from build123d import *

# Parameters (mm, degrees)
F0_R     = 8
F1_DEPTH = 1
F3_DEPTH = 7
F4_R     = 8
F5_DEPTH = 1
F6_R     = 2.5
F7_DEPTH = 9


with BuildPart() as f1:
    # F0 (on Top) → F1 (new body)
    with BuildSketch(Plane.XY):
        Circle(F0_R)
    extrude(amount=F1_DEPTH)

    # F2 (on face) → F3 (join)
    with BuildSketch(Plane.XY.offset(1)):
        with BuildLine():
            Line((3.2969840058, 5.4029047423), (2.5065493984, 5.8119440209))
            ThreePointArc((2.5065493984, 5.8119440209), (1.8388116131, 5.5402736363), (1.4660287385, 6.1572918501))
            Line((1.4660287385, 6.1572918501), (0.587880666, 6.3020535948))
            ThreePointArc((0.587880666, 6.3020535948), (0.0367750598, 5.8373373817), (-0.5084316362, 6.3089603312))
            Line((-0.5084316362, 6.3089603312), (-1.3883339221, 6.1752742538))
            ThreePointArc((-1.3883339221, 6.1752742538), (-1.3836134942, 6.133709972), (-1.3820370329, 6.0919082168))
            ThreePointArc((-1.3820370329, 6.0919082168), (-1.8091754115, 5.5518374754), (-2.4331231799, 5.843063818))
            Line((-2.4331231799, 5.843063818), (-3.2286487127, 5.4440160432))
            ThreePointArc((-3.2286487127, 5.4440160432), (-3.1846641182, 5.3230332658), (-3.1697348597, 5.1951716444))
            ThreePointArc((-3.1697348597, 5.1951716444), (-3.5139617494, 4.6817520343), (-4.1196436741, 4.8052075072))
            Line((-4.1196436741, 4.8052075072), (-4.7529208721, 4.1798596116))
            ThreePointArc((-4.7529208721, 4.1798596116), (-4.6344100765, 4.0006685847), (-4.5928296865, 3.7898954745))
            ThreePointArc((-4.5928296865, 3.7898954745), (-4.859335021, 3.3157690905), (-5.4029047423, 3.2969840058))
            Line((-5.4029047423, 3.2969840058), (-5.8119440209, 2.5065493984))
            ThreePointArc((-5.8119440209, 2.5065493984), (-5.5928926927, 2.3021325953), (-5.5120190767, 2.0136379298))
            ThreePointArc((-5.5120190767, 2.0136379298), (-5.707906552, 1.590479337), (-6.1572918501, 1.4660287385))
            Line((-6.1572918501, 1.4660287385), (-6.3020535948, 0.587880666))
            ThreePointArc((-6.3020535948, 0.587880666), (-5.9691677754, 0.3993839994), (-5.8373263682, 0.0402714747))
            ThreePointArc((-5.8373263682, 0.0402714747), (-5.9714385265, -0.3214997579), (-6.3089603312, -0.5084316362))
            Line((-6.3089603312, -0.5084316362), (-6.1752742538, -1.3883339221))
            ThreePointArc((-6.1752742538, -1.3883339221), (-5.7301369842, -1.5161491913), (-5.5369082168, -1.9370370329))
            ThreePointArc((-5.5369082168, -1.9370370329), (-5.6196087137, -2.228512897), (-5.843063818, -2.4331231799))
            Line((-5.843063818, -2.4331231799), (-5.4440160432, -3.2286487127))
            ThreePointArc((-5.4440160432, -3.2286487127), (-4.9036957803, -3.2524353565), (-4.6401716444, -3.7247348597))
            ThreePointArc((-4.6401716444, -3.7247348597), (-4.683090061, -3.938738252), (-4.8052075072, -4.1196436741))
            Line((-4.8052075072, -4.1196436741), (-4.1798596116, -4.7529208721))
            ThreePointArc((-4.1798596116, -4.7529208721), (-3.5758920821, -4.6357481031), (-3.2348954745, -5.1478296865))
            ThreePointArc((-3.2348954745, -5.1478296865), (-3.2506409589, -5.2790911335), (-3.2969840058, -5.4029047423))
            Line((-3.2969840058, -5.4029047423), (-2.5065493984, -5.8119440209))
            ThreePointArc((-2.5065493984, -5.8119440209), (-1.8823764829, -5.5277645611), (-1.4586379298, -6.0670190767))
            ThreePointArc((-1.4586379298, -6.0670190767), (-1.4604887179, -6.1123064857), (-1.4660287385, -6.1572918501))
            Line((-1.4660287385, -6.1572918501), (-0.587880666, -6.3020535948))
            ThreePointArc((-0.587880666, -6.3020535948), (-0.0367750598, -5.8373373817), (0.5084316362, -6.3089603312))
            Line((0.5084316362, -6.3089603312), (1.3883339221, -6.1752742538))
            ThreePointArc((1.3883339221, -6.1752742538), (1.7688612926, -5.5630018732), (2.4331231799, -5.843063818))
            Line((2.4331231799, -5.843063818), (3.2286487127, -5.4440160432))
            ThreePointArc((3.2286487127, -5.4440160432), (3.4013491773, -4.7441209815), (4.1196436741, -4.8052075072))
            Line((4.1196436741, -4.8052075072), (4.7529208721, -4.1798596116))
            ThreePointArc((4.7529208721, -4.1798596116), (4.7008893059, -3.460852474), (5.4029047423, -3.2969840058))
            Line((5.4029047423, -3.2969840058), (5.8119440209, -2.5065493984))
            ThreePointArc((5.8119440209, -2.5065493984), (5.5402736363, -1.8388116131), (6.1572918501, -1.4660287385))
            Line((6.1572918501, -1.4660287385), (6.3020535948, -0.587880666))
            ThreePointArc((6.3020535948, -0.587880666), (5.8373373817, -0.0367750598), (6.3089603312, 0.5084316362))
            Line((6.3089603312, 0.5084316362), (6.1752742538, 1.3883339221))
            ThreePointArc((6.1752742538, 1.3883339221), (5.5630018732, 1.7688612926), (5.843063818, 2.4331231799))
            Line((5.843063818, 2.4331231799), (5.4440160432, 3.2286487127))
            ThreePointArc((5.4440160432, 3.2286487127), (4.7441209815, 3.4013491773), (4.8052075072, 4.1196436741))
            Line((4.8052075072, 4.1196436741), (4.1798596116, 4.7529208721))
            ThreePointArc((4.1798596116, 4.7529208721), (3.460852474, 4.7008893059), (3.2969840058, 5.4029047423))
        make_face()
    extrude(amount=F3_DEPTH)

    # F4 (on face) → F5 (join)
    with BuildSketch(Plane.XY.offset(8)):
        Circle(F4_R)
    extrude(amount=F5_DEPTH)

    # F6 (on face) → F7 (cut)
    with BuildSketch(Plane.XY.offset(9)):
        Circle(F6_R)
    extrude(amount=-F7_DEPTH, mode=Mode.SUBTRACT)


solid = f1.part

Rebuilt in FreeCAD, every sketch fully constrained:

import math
import FreeCAD as App
import Part
import Sketcher
Q = App.Units.Quantity

doc = App.newDocument("Part")
body = doc.addObject("PartDesign::Body", "Body")

# Sketch on XY plane
sketch1 = doc.addObject("Sketcher::SketchObject", "Sketch")
body.addObject(sketch1)
sketch1.AttachmentSupport = (doc.XY_Plane, [""])
sketch1.MapMode = "FlatFace"
sketch1.addGeometry(Part.Circle(App.Vector(0, 0, 0), App.Vector(0, 0, 1), 8), False)
sketch1.addConstraint([
    Sketcher.Constraint("Coincident", 0, 3, -1, 1),
    Sketcher.Constraint("Diameter", 0, Q("16 mm")),
])
pad1 = doc.addObject("PartDesign::Pad", "Pad")
body.addObject(pad1)
pad1.Profile = sketch1
pad1.Length = 1

# Sketch on XY plane
sketch2 = doc.addObject("Sketcher::SketchObject", "Sketch001")
body.addObject(sketch2)
sketch2.AttachmentSupport = (doc.XY_Plane, [""])
sketch2.MapMode = "FlatFace"
sketch2.AttachmentOffset = App.Placement(App.Vector(0, 0, 1), App.Rotation())
sketch2.addGeometry([
    Part.LineSegment(App.Vector(3.296984, 5.402905, 0), App.Vector(2.506549, 5.811944, 0)),  # 0
    Part.ArcOfCircle(Part.Circle(App.Vector(2.013638, 6.067019, 0), App.Vector(0, 0, 1), 0.555), math.radians(170.639043), math.radians(332.639043)),  # 1
    Part.LineSegment(App.Vector(1.466029, 6.157292, 0), App.Vector(0.587881, 6.302054, 0)),  # 2
    Part.ArcOfCircle(Part.Circle(App.Vector(0.040271, 6.392326, 0), App.Vector(0, 0, 1), 0.555), math.radians(-171.360957), math.radians(-9.360957)),  # 3
    Part.LineSegment(App.Vector(-0.508432, 6.30896, 0), App.Vector(-1.388334, 6.175274, 0)),  # 4
    Part.ArcOfCircle(Part.Circle(App.Vector(-1.937037, 6.091908, 0), App.Vector(0, 0, 1), 0.555), math.radians(0), math.radians(8.639043)),  # 5
    Part.ArcOfCircle(Part.Circle(App.Vector(-1.937037, 6.091908, 0), App.Vector(0, 0, 1), 0.555), math.radians(-153.360957), math.radians(0)),  # 6
    Part.LineSegment(App.Vector(-2.433123, 5.843064, 0), App.Vector(-3.228649, 5.444016, 0)),  # 7
    Part.ArcOfCircle(Part.Circle(App.Vector(-3.724735, 5.195172, 0), App.Vector(0, 0, 1), 0.555), math.radians(0), math.radians(26.639043)),  # 8
    Part.ArcOfCircle(Part.Circle(App.Vector(-3.724735, 5.195172, 0), App.Vector(0, 0, 1), 0.555), math.radians(-135.360957), math.radians(0)),  # 9
    Part.LineSegment(App.Vector(-4.119644, 4.805208, 0), App.Vector(-4.752921, 4.17986, 0)),  # 10
    Part.ArcOfCircle(Part.Circle(App.Vector(-5.14783, 3.789895, 0), App.Vector(0, 0, 1), 0.555), math.radians(0), math.radians(44.639043)),  # 11
    Part.ArcOfCircle(Part.Circle(App.Vector(-5.14783, 3.789895, 0), App.Vector(0, 0, 1), 0.555), math.radians(-117.360957), math.radians(0)),  # 12
    Part.LineSegment(App.Vector(-5.402905, 3.296984, 0), App.Vector(-5.811944, 2.506549, 0)),  # 13
    Part.ArcOfCircle(Part.Circle(App.Vector(-6.067019, 2.013638, 0), App.Vector(0, 0, 1), 0.555), math.radians(0), math.radians(62.639043)),  # 14
    Part.ArcOfCircle(Part.Circle(App.Vector(-6.067019, 2.013638, 0), App.Vector(0, 0, 1), 0.555), math.radians(-99.360957), math.radians(0)),  # 15
    Part.LineSegment(App.Vector(-6.157292, 1.466029, 0), App.Vector(-6.302054, 0.587881, 0)),  # 16
    Part.ArcOfCircle(Part.Circle(App.Vector(-6.392326, 0.040271, 0), App.Vector(0, 0, 1), 0.555), math.radians(0), math.radians(80.639043)),  # 17
    Part.ArcOfCircle(Part.Circle(App.Vector(-6.392326, 0.040271, 0), App.Vector(0, 0, 1), 0.555), math.radians(-81.360957), math.radians(0)),  # 18
    Part.LineSegment(App.Vector(-6.30896, -0.508432, 0), App.Vector(-6.175274, -1.388334, 0)),  # 19
    Part.ArcOfCircle(Part.Circle(App.Vector(-6.091908, -1.937037, 0), App.Vector(0, 0, 1), 0.555), math.radians(0), math.radians(98.639043)),  # 20
    Part.ArcOfCircle(Part.Circle(App.Vector(-6.091908, -1.937037, 0), App.Vector(0, 0, 1), 0.555), math.radians(-63.360957), math.radians(0)),  # 21
    Part.LineSegment(App.Vector(-5.843064, -2.433123, 0), App.Vector(-5.444016, -3.228649, 0)),  # 22
    Part.ArcOfCircle(Part.Circle(App.Vector(-5.195172, -3.724735, 0), App.Vector(0, 0, 1), 0.555), math.radians(0), math.radians(116.639043)),  # 23
    Part.ArcOfCircle(Part.Circle(App.Vector(-5.195172, -3.724735, 0), App.Vector(0, 0, 1), 0.555), math.radians(-45.360957), math.radians(0)),  # 24
    Part.LineSegment(App.Vector(-4.805208, -4.119644, 0), App.Vector(-4.17986, -4.752921, 0)),  # 25
    Part.ArcOfCircle(Part.Circle(App.Vector(-3.789895, -5.14783, 0), App.Vector(0, 0, 1), 0.555), math.radians(0), math.radians(134.639043)),  # 26
    Part.ArcOfCircle(Part.Circle(App.Vector(-3.789895, -5.14783, 0), App.Vector(0, 0, 1), 0.555), math.radians(-27.360957), math.radians(0)),  # 27
    Part.LineSegment(App.Vector(-3.296984, -5.402905, 0), App.Vector(-2.506549, -5.811944, 0)),  # 28
    Part.ArcOfCircle(Part.Circle(App.Vector(-2.013638, -6.067019, 0), App.Vector(0, 0, 1), 0.555), math.radians(0), math.radians(152.639043)),  # 29
    Part.ArcOfCircle(Part.Circle(App.Vector(-2.013638, -6.067019, 0), App.Vector(0, 0, 1), 0.555), math.radians(-9.360957), math.radians(0)),  # 30
    Part.LineSegment(App.Vector(-1.466029, -6.157292, 0), App.Vector(-0.587881, -6.302054, 0)),  # 31
    Part.ArcOfCircle(Part.Circle(App.Vector(-0.040271, -6.392326, 0), App.Vector(0, 0, 1), 0.555), math.radians(8.639043), math.radians(170.639043)),  # 32
    Part.LineSegment(App.Vector(0.508432, -6.30896, 0), App.Vector(1.388334, -6.175274, 0)),  # 33
    Part.ArcOfCircle(Part.Circle(App.Vector(1.937037, -6.091908, 0), App.Vector(0, 0, 1), 0.555), math.radians(26.639043), math.radians(188.639043)),  # 34
    Part.LineSegment(App.Vector(2.433123, -5.843064, 0), App.Vector(3.228649, -5.444016, 0)),  # 35
    Part.ArcOfCircle(Part.Circle(App.Vector(3.724735, -5.195172, 0), App.Vector(0, 0, 1), 0.555), math.radians(44.639043), math.radians(206.639043)),  # 36
    Part.LineSegment(App.Vector(4.119644, -4.805208, 0), App.Vector(4.752921, -4.17986, 0)),  # 37
    Part.ArcOfCircle(Part.Circle(App.Vector(5.14783, -3.789895, 0), App.Vector(0, 0, 1), 0.555), math.radians(62.639043), math.radians(224.639043)),  # 38
    Part.LineSegment(App.Vector(5.402905, -3.296984, 0), App.Vector(5.811944, -2.506549, 0)),  # 39
    Part.ArcOfCircle(Part.Circle(App.Vector(6.067019, -2.013638, 0), App.Vector(0, 0, 1), 0.555), math.radians(80.639043), math.radians(242.639043)),  # 40
    Part.LineSegment(App.Vector(6.157292, -1.466029, 0), App.Vector(6.302054, -0.587881, 0)),  # 41
    Part.ArcOfCircle(Part.Circle(App.Vector(6.392326, -0.040271, 0), App.Vector(0, 0, 1), 0.555), math.radians(98.639043), math.radians(260.639043)),  # 42
    Part.LineSegment(App.Vector(6.30896, 0.508432, 0), App.Vector(6.175274, 1.388334, 0)),  # 43
    Part.ArcOfCircle(Part.Circle(App.Vector(6.091908, 1.937037, 0), App.Vector(0, 0, 1), 0.555), math.radians(116.639043), math.radians(278.639043)),  # 44
    Part.LineSegment(App.Vector(5.843064, 2.433123, 0), App.Vector(5.444016, 3.228649, 0)),  # 45
    Part.ArcOfCircle(Part.Circle(App.Vector(5.195172, 3.724735, 0), App.Vector(0, 0, 1), 0.555), math.radians(134.639043), math.radians(296.639043)),  # 46
    Part.LineSegment(App.Vector(4.805208, 4.119644, 0), App.Vector(4.17986, 4.752921, 0)),  # 47
    Part.ArcOfCircle(Part.Circle(App.Vector(3.789895, 5.14783, 0), App.Vector(0, 0, 1), 0.555), math.radians(152.639043), math.radians(314.639043)),  # 48
], False)
sketch2.addConstraint([
    Sketcher.Constraint("Coincident", 0, 2, 1, 2),
    Sketcher.Constraint("Coincident", 1, 1, 2, 1),
    Sketcher.Constraint("Coincident", 2, 2, 3, 2),
    Sketcher.Constraint("Coincident", 3, 1, 4, 1),
    Sketcher.Constraint("Coincident", 4, 2, 5, 2),
    Sketcher.Constraint("Tangent", 5, 1, 6, 2),
    Sketcher.Constraint("Coincident", 6, 1, 7, 1),
    Sketcher.Constraint("Coincident", 7, 2, 8, 2),
    Sketcher.Constraint("Tangent", 8, 1, 9, 2),
    Sketcher.Constraint("Coincident", 9, 1, 10, 1),
    Sketcher.Constraint("Coincident", 10, 2, 11, 2),
    Sketcher.Constraint("Tangent", 11, 1, 12, 2),
    Sketcher.Constraint("Coincident", 12, 1, 13, 1),
    Sketcher.Constraint("Coincident", 13, 2, 14, 2),
    Sketcher.Constraint("Tangent", 14, 1, 15, 2),
    Sketcher.Constraint("Coincident", 15, 1, 16, 1),
    Sketcher.Constraint("Coincident", 16, 2, 17, 2),
    Sketcher.Constraint("Tangent", 17, 1, 18, 2),
    Sketcher.Constraint("Coincident", 18, 1, 19, 1),
    Sketcher.Constraint("Coincident", 19, 2, 20, 2),
    Sketcher.Constraint("Tangent", 20, 1, 21, 2),
    Sketcher.Constraint("Coincident", 21, 1, 22, 1),
    Sketcher.Constraint("Coincident", 22, 2, 23, 2),
    Sketcher.Constraint("Tangent", 23, 1, 24, 2),
    Sketcher.Constraint("Coincident", 24, 1, 25, 1),
    Sketcher.Constraint("Coincident", 25, 2, 26, 2),
    Sketcher.Constraint("Tangent", 26, 1, 27, 2),
    Sketcher.Constraint("Coincident", 27, 1, 28, 1),
    Sketcher.Constraint("Coincident", 28, 2, 29, 2),
    Sketcher.Constraint("Tangent", 29, 1, 30, 2),
    Sketcher.Constraint("Coincident", 30, 1, 31, 1),
    Sketcher.Constraint("Coincident", 31, 2, 32, 2),
    Sketcher.Constraint("Coincident", 32, 1, 33, 1),
    Sketcher.Constraint("Coincident", 33, 2, 34, 2),
    Sketcher.Constraint("Coincident", 34, 1, 35, 1),
    Sketcher.Constraint("Coincident", 35, 2, 36, 2),
    Sketcher.Constraint("Coincident", 36, 1, 37, 1),
    Sketcher.Constraint("Coincident", 37, 2, 38, 2),
    Sketcher.Constraint("Coincident", 38, 1, 39, 1),
    Sketcher.Constraint("Coincident", 39, 2, 40, 2),
    Sketcher.Constraint("Coincident", 40, 1, 41, 1),
    Sketcher.Constraint("Coincident", 41, 2, 42, 2),
    Sketcher.Constraint("Coincident", 42, 1, 43, 1),
    Sketcher.Constraint("Coincident", 43, 2, 44, 2),
    Sketcher.Constraint("Coincident", 44, 1, 45, 1),
    Sketcher.Constraint("Coincident", 45, 2, 46, 2),
    Sketcher.Constraint("Coincident", 46, 1, 47, 1),
    Sketcher.Constraint("Coincident", 47, 2, 48, 2),
    Sketcher.Constraint("Coincident", 48, 1, 0, 1),
    Sketcher.Constraint("Equal", 1, 3),
    Sketcher.Constraint("Equal", 3, 5),
    Sketcher.Constraint("Equal", 5, 6),
    Sketcher.Constraint("Equal", 6, 8),
    Sketcher.Constraint("Equal", 8, 9),
    Sketcher.Constraint("Equal", 9, 11),
    Sketcher.Constraint("Equal", 11, 12),
    Sketcher.Constraint("Equal", 12, 14),
    Sketcher.Constraint("Equal", 14, 15),
    Sketcher.Constraint("Equal", 15, 17),
    Sketcher.Constraint("Equal", 17, 18),
    Sketcher.Constraint("Equal", 18, 20),
    Sketcher.Constraint("Equal", 20, 21),
    Sketcher.Constraint("Equal", 21, 23),
    Sketcher.Constraint("Equal", 23, 24),
    Sketcher.Constraint("Equal", 24, 26),
    Sketcher.Constraint("Equal", 26, 27),
    Sketcher.Constraint("Equal", 27, 29),
    Sketcher.Constraint("Equal", 29, 30),
    Sketcher.Constraint("Equal", 30, 32),
    Sketcher.Constraint("Equal", 32, 34),
    Sketcher.Constraint("Equal", 34, 36),
    Sketcher.Constraint("Equal", 36, 38),
    Sketcher.Constraint("Equal", 38, 40),
    Sketcher.Constraint("Equal", 40, 42),
    Sketcher.Constraint("Equal", 42, 44),
    Sketcher.Constraint("Equal", 44, 46),
    Sketcher.Constraint("Equal", 46, 48),
    Sketcher.Constraint("Symmetric", 1, 3, 29, 3, -1, 1),
    Sketcher.Constraint("Symmetric", 3, 3, 32, 3, -1, 1),
    Sketcher.Constraint("Symmetric", 5, 3, 34, 3, -1, 1),
    Sketcher.Constraint("Symmetric", 8, 3, 36, 3, -1, 1),
    Sketcher.Constraint("Symmetric", 11, 3, 38, 3, -1, 1),
    Sketcher.Constraint("Symmetric", 14, 3, 40, 3, -1, 1),
    Sketcher.Constraint("Symmetric", 17, 3, 42, 3, -1, 1),
    Sketcher.Constraint("Symmetric", 20, 3, 44, 3, -1, 1),
    Sketcher.Constraint("Symmetric", 23, 3, 46, 3, -1, 1),
    Sketcher.Constraint("Symmetric", 26, 3, 48, 3, -1, 1),
    Sketcher.Constraint("Perpendicular", 0, 13),
    Sketcher.Constraint("Perpendicular", 2, 16),
    Sketcher.Constraint("Perpendicular", 4, 19),
    Sketcher.Constraint("Perpendicular", 7, 22),
    Sketcher.Constraint("Perpendicular", 10, 25),
    Sketcher.Constraint("Perpendicular", 13, 28),
    Sketcher.Constraint("Perpendicular", 16, 31),
    Sketcher.Constraint("Perpendicular", 19, 33),
    Sketcher.Constraint("Perpendicular", 22, 35),
    Sketcher.Constraint("Perpendicular", 25, 37),
    Sketcher.Constraint("Perpendicular", 28, 39),
    Sketcher.Constraint("Perpendicular", 31, 41),
    Sketcher.Constraint("Perpendicular", 33, 43),
    Sketcher.Constraint("Perpendicular", 35, 45),
    Sketcher.Constraint("Perpendicular", 37, 47),
    Sketcher.Constraint("Horizontal", 6, 3, 5, 1),
    Sketcher.Constraint("Horizontal", 9, 3, 8, 1),
    Sketcher.Constraint("Horizontal", 12, 3, 11, 1),
    Sketcher.Constraint("Horizontal", 15, 3, 14, 1),
    Sketcher.Constraint("Horizontal", 18, 3, 17, 1),
    Sketcher.Constraint("Horizontal", 21, 3, 20, 1),
    Sketcher.Constraint("Horizontal", 24, 3, 23, 1),
    Sketcher.Constraint("Horizontal", 27, 3, 26, 1),
    Sketcher.Constraint("Horizontal", 30, 3, 29, 1),
    Sketcher.Constraint("Equal", 0, 2),
    Sketcher.Constraint("Equal", 2, 4),
    Sketcher.Constraint("Equal", 4, 7),
    Sketcher.Constraint("Equal", 7, 10),
    Sketcher.Constraint("Equal", 10, 13),
    Sketcher.Constraint("Equal", 13, 16),
    Sketcher.Constraint("Equal", 16, 19),
    Sketcher.Constraint("Equal", 19, 22),
    Sketcher.Constraint("Equal", 22, 25),
    Sketcher.Constraint("Radius", 1, Q("0.555 mm")),
    Sketcher.Constraint("Distance", 0, Q("0.89 mm")),
    Sketcher.Constraint("DistanceY", -1, 1, 1, 3, Q("6.067019 mm")),
    Sketcher.Constraint("DistanceX", -1, 1, 3, 3, Q("0.040271 mm")),
    Sketcher.Constraint("DistanceY", -1, 1, 5, 3, Q("6.091908 mm")),
    Sketcher.Constraint("DistanceY", -1, 1, 8, 3, Q("5.195172 mm")),
    Sketcher.Constraint("DistanceX", 11, 3, -1, 1, Q("5.14783 mm")),
    Sketcher.Constraint("DistanceX", 14, 3, -1, 1, Q("6.067019 mm")),
    Sketcher.Constraint("DistanceY", -1, 1, 17, 3, Q("0.040271 mm")),
    Sketcher.Constraint("DistanceX", 20, 3, -1, 1, Q("6.091908 mm")),
    Sketcher.Constraint("DistanceX", 23, 3, -1, 1, Q("5.195172 mm")),
    Sketcher.Constraint("DistanceY", 26, 3, -1, 1, Q("5.14783 mm")),
    Sketcher.Constraint("DistanceX", -1, 1, 0, 2, Q("2.506549 mm")),
    Sketcher.Constraint("DistanceX", -1, 1, 1, 1, Q("1.466029 mm")),
    Sketcher.Constraint("DistanceX", -1, 1, 2, 2, Q("0.587881 mm")),
    Sketcher.Constraint("DistanceX", 3, 1, -1, 1, Q("0.508432 mm")),
    Sketcher.Constraint("DistanceX", 7, 2, -1, 1, Q("3.228649 mm")),
    Sketcher.Constraint("DistanceX", 10, 2, -1, 1, Q("4.752921 mm")),
    Sketcher.Constraint("DistanceY", -1, 1, 13, 2, Q("2.506549 mm")),
    Sketcher.Constraint("DistanceX", 15, 1, -1, 1, Q("6.157292 mm")),
    Sketcher.Constraint("DistanceX", 18, 1, -1, 1, Q("6.30896 mm")),
    Sketcher.Constraint("DistanceY", 22, 2, -1, 1, Q("3.228649 mm")),
    Sketcher.Constraint("DistanceX", 25, 2, -1, 1, Q("4.17986 mm")),
    Sketcher.Constraint("DistanceX", 28, 2, -1, 1, Q("2.506549 mm")),
    Sketcher.Constraint("DistanceX", 30, 1, -1, 1, Q("1.466029 mm")),
    Sketcher.Constraint("DistanceX", -1, 1, 32, 1, Q("0.508432 mm")),
    Sketcher.Constraint("DistanceX", -1, 1, 35, 2, Q("3.228649 mm")),
    Sketcher.Constraint("DistanceX", -1, 1, 37, 2, Q("4.752921 mm")),
    Sketcher.Constraint("DistanceY", 39, 2, -1, 1, Q("2.506549 mm")),
    Sketcher.Constraint("DistanceX", -1, 1, 40, 1, Q("6.157292 mm")),
    Sketcher.Constraint("DistanceX", -1, 1, 42, 1, Q("6.30896 mm")),
    Sketcher.Constraint("DistanceY", -1, 1, 45, 2, Q("3.228649 mm")),
    Sketcher.Constraint("DistanceX", -1, 1, 47, 2, Q("4.17986 mm")),
    Sketcher.Constraint("DistanceX", 4, 2, -1, 1, Q("1.388334 mm")),
    Sketcher.Constraint("DistanceX", 6, 1, -1, 1, Q("2.433123 mm")),
    Sketcher.Constraint("DistanceX", 9, 1, -1, 1, Q("4.119644 mm")),
    Sketcher.Constraint("DistanceX", 12, 1, -1, 1, Q("5.402905 mm")),
])
pad2 = doc.addObject("PartDesign::Pad", "Pad001")
body.addObject(pad2)
pad2.Profile = sketch2
pad2.Length = 7

# Sketch on XY plane
sketch3 = doc.addObject("Sketcher::SketchObject", "Sketch002")
body.addObject(sketch3)
sketch3.AttachmentSupport = (doc.XY_Plane, [""])
sketch3.MapMode = "FlatFace"
sketch3.AttachmentOffset = App.Placement(App.Vector(0, 0, 8), App.Rotation())
sketch3.addGeometry(Part.Circle(App.Vector(0, 0, 0), App.Vector(0, 0, 1), 8), False)
sketch3.addConstraint([
    Sketcher.Constraint("Coincident", 0, 3, -1, 1),
    Sketcher.Constraint("Diameter", 0, Q("16 mm")),
])
pad3 = doc.addObject("PartDesign::Pad", "Pad002")
body.addObject(pad3)
pad3.Profile = sketch3
pad3.Length = 1

# Sketch on XY plane
sketch4 = doc.addObject("Sketcher::SketchObject", "Sketch003")
body.addObject(sketch4)
sketch4.AttachmentSupport = (doc.XY_Plane, [""])
sketch4.MapMode = "FlatFace"
sketch4.AttachmentOffset = App.Placement(App.Vector(0, 0, 9), App.Rotation())
sketch4.addGeometry(Part.Circle(App.Vector(0, 0, 0), App.Vector(0, 0, 1), 2.5), False)
sketch4.addConstraint([
    Sketcher.Constraint("Coincident", 0, 3, -1, 1),
    Sketcher.Constraint("Diameter", 0, Q("5 mm")),
])
pocket1 = doc.addObject("PartDesign::Pocket", "Pocket")
body.addObject(pocket1)
pocket1.Profile = sketch4
pocket1.Length = 9

doc.recompute()
